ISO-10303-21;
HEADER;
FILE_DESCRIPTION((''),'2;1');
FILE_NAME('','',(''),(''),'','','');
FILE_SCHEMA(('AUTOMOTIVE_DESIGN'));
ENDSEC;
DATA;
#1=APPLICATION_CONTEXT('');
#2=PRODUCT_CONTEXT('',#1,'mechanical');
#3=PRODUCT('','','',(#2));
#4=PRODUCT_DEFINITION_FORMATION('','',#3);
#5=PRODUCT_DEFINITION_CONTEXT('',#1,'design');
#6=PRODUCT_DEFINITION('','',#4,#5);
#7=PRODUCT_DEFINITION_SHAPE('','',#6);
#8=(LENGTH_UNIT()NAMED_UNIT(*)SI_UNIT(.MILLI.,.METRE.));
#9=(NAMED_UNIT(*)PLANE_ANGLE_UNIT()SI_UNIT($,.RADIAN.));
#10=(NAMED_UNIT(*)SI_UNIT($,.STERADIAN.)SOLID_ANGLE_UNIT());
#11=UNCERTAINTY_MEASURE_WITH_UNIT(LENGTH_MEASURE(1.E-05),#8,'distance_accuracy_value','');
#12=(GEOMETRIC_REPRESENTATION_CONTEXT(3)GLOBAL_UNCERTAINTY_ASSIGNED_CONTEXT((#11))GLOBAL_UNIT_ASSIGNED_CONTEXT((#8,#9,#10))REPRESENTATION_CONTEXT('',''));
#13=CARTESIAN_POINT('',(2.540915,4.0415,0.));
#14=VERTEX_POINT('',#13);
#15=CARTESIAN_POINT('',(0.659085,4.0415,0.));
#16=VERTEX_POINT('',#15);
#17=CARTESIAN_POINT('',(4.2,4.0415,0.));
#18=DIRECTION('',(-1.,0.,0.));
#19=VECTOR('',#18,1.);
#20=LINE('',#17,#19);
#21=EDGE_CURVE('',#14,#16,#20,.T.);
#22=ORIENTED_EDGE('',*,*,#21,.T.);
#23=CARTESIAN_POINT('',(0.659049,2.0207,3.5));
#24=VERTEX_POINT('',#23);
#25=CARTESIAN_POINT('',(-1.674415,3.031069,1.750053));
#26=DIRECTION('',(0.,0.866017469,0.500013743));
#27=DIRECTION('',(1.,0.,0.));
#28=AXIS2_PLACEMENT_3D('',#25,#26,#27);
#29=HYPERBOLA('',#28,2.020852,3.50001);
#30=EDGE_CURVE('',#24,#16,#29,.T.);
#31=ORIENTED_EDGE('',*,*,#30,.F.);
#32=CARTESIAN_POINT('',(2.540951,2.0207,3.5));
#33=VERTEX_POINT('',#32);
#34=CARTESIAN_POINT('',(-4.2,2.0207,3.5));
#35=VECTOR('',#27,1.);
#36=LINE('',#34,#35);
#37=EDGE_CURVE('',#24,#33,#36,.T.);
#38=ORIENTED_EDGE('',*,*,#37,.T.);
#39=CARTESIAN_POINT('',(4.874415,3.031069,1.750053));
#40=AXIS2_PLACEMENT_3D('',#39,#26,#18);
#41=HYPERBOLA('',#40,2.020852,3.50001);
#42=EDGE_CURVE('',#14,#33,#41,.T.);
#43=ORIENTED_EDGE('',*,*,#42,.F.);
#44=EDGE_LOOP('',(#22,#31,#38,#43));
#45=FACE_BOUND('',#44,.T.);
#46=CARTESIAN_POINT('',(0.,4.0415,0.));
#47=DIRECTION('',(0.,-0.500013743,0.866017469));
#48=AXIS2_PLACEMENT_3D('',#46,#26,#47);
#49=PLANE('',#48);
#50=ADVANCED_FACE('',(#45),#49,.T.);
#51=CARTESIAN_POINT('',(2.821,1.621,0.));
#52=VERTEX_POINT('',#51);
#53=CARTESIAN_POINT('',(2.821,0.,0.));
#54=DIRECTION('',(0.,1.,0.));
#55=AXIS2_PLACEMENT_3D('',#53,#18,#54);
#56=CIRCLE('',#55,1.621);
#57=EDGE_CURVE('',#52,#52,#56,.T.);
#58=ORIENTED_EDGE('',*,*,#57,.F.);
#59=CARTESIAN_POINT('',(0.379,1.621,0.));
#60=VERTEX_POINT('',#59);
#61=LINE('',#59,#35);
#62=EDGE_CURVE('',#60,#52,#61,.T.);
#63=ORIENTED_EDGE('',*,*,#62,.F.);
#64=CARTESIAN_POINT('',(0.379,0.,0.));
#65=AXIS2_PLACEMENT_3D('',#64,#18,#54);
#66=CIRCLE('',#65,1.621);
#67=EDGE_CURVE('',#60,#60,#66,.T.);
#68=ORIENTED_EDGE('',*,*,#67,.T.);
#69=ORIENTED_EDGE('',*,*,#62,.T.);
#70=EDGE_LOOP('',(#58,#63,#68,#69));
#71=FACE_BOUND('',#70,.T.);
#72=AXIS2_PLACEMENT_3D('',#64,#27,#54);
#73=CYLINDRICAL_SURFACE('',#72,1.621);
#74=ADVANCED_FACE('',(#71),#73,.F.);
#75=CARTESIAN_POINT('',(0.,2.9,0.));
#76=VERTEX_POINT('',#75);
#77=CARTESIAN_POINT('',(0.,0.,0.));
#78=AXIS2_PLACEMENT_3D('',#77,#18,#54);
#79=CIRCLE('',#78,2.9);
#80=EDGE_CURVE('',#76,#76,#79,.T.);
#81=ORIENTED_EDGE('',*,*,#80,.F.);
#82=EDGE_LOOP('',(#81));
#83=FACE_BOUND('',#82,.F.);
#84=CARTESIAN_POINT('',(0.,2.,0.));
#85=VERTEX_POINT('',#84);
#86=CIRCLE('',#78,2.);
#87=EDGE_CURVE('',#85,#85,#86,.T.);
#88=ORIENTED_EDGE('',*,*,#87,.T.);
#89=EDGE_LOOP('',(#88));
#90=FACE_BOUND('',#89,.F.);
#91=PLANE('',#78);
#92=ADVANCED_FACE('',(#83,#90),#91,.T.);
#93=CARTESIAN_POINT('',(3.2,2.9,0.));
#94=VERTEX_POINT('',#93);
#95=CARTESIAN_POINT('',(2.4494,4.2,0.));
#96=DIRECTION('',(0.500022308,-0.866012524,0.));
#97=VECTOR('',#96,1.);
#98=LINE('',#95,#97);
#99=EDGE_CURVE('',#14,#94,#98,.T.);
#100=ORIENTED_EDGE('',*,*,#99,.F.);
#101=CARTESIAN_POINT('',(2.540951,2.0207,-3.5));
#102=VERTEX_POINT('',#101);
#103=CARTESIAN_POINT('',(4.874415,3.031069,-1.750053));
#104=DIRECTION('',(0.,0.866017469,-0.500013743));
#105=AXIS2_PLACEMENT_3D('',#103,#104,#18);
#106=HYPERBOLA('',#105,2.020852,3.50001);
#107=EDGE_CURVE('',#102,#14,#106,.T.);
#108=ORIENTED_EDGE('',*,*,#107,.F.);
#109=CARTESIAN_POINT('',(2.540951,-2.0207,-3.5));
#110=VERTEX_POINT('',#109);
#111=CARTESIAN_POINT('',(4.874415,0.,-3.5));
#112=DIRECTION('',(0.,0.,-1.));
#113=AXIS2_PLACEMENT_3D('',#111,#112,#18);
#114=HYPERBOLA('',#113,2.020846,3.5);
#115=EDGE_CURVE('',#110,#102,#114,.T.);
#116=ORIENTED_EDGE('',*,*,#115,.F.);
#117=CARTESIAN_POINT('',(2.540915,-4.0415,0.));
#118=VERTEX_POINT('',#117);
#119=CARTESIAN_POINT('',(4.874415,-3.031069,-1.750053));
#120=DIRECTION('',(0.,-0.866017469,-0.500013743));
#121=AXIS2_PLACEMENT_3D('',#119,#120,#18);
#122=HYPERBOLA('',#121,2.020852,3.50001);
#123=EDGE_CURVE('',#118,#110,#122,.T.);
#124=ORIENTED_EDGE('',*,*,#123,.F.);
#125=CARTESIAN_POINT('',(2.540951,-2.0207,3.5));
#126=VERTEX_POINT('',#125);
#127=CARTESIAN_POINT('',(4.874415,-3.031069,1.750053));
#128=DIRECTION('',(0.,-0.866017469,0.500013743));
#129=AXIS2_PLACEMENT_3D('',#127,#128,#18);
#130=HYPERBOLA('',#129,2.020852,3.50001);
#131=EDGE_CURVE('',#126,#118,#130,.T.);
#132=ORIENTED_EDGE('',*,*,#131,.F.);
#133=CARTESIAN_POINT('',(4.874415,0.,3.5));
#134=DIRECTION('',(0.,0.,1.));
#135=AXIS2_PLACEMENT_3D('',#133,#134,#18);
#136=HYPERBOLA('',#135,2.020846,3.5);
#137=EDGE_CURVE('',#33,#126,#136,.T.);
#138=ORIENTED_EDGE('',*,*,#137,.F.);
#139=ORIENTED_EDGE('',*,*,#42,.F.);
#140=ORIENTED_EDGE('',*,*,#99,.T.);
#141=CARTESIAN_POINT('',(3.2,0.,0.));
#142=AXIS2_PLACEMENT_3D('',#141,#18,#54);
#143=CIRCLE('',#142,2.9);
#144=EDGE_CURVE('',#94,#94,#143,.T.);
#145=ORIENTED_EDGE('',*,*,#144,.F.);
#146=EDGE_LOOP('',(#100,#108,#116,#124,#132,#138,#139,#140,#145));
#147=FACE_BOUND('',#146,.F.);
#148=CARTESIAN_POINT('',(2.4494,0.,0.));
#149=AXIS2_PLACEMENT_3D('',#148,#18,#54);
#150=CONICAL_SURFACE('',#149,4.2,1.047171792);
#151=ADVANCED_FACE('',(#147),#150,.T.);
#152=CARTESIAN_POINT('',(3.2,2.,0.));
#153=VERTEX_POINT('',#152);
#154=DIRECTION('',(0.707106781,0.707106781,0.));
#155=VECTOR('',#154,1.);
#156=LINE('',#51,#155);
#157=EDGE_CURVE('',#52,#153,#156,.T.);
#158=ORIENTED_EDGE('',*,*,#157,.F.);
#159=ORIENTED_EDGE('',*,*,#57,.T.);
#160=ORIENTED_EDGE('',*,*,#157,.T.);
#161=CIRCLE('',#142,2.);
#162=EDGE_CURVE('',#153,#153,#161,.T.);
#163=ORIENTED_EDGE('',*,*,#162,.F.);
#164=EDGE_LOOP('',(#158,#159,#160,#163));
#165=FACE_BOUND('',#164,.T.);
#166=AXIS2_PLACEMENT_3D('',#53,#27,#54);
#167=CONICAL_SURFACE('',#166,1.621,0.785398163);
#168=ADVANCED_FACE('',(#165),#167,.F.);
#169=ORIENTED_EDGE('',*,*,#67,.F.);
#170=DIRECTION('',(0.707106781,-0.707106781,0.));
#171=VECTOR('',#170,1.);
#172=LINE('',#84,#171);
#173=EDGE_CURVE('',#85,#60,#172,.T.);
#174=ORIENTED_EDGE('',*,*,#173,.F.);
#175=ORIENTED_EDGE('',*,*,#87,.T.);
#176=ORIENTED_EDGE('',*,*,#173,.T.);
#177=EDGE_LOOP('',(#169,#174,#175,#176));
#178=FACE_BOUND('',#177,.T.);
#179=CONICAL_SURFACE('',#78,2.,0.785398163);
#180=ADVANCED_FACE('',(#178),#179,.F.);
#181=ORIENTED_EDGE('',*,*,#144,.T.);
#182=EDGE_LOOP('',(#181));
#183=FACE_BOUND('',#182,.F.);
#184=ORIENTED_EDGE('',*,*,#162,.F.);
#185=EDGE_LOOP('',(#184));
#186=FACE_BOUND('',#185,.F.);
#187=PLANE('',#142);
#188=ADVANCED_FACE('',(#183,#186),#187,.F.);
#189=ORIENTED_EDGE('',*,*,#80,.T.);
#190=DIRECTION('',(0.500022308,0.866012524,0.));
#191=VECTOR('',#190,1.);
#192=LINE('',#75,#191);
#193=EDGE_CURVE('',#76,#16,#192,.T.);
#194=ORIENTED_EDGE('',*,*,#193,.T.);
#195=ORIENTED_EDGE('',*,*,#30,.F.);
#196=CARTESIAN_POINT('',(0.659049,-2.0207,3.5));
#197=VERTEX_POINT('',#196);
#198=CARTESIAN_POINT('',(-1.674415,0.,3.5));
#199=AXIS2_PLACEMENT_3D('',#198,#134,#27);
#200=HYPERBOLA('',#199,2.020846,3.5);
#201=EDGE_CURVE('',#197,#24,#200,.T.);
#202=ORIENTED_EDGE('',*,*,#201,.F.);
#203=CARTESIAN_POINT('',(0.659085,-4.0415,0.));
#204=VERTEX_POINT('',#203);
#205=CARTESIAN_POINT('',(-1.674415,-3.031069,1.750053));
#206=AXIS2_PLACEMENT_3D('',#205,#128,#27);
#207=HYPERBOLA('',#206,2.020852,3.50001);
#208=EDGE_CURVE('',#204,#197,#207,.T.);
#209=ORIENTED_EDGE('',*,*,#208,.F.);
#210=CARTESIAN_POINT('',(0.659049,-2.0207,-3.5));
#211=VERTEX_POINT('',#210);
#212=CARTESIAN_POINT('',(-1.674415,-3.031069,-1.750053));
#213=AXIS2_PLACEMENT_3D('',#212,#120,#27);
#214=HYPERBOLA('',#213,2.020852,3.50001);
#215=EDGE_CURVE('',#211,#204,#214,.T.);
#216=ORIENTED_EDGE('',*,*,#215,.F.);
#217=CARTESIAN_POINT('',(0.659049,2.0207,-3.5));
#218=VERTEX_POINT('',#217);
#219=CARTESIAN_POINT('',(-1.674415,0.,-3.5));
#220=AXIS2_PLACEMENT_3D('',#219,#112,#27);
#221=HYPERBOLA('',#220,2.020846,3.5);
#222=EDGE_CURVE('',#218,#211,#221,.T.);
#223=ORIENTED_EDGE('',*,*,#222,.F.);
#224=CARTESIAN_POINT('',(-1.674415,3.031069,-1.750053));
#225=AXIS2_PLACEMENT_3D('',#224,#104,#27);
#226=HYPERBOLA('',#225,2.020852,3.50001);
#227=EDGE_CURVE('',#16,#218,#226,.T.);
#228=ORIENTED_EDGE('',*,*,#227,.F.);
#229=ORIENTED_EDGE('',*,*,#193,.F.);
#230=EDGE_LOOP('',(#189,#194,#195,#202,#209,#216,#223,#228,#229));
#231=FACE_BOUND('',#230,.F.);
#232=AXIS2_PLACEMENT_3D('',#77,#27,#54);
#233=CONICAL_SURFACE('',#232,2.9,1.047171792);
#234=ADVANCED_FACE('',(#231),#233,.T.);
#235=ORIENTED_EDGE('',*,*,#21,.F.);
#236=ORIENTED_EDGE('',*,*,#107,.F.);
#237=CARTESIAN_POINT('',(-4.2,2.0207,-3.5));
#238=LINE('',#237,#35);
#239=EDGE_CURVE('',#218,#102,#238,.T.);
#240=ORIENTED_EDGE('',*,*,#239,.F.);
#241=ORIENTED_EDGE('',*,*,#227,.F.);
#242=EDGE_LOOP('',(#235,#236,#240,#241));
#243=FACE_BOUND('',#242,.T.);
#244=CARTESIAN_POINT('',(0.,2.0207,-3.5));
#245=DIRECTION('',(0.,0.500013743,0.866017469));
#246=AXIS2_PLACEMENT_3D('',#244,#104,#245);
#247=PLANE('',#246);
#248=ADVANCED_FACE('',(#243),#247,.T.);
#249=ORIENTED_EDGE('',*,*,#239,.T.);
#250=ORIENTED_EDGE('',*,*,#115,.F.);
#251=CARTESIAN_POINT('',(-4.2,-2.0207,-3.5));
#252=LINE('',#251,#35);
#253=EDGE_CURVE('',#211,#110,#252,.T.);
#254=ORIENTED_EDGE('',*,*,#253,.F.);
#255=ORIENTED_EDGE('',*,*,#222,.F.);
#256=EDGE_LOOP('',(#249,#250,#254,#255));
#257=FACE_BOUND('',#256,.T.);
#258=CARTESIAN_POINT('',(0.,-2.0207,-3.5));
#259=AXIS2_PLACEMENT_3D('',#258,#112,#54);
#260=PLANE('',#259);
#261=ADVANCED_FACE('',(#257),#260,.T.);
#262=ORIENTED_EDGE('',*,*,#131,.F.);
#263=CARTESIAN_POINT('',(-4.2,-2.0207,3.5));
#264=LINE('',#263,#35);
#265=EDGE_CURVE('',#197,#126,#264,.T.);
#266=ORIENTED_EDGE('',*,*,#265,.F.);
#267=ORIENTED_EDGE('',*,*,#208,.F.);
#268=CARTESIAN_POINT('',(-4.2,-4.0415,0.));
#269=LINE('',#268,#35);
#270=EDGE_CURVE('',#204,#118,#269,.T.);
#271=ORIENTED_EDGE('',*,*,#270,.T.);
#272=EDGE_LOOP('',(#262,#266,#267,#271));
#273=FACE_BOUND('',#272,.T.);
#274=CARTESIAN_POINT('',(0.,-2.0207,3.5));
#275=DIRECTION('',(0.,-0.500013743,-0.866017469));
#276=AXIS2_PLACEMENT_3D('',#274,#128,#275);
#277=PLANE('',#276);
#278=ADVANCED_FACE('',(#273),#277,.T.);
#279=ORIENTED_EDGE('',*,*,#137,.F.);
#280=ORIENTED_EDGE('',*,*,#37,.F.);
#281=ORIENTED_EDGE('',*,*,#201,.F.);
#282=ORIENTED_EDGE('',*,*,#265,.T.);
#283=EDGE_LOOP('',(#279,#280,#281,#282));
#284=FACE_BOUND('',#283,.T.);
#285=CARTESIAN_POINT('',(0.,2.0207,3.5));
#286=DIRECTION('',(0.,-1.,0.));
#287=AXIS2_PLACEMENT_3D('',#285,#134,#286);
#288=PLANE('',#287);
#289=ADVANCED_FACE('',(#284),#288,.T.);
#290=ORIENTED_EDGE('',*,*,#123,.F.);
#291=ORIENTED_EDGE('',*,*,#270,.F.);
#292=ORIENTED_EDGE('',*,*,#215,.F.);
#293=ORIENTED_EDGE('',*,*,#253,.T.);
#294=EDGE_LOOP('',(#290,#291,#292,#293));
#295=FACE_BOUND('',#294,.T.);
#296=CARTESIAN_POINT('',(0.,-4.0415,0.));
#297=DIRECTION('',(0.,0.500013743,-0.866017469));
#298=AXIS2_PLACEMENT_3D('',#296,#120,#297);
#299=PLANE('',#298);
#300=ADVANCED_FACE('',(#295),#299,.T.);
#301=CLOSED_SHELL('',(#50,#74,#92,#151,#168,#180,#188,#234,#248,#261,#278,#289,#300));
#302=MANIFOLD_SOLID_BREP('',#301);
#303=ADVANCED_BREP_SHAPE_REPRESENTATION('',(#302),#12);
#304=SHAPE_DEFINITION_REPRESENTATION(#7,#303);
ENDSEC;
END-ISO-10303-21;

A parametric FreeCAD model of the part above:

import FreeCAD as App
import Part
import Sketcher
from FreeCAD import Vector
Q = App.Units.Quantity

doc = App.newDocument("Part")
body = doc.addObject("PartDesign::Body", "Body")

# Sketch on XY plane
sketch1 = body.newObject("Sketcher::SketchObject", "Sketch")
sketch1.AttachmentSupport = (doc.getObject("XY_Plane"), [""])
sketch1.MapMode = "FlatFace"
sketch1.addGeometry([
    Part.LineSegment(Vector(0, 4.2, 0), Vector(0, 0, 0)),
    Part.LineSegment(Vector(0, 0, 0), Vector(3.2, 0, 0)),
    Part.LineSegment(Vector(3.2, 0, 0), Vector(3.2, 4.2, 0)),
    Part.LineSegment(Vector(3.2, 4.2, 0), Vector(0, 4.2, 0)),
], False)
sketch1.addConstraint([
    Sketcher.Constraint("Coincident", 0, 2, 1, 1),
    Sketcher.Constraint("Coincident", 1, 2, 2, 1),
    Sketcher.Constraint("Coincident", 2, 2, 3, 1),
    Sketcher.Constraint("Coincident", 3, 2, 0, 1),
    Sketcher.Constraint("Vertical", 0),
    Sketcher.Constraint("Horizontal", 1),
    Sketcher.Constraint("Vertical", 2),
    Sketcher.Constraint("Horizontal", 3),
    Sketcher.Constraint("Coincident", 0, 2, -1, 1),
    Sketcher.Constraint("DistanceX", 1, 1, 1, 2, Q("3.2 mm")),
    Sketcher.Constraint("DistanceY", 0, 2, 0, 1, Q("4.2 mm")),
])
revolution = body.newObject("PartDesign::Revolution", "Revolution")
revolution.Profile = sketch1
revolution.ReferenceAxis = (sketch1, ["H_Axis"])
revolution.Angle = 360

# Sketch on XY plane
sketch2 = body.newObject("Sketcher::SketchObject", "Sketch001")
sketch2.AttachmentSupport = (doc.getObject("XY_Plane"), [""])
sketch2.MapMode = "FlatFace"
sketch2.addGeometry([
    Part.LineSegment(Vector(3.52, 7, 0), Vector(-1, 7, 0)),  # 0
    Part.LineSegment(Vector(-1, 7, 0), Vector(-1, 2.9, 0)),  # 1
    Part.LineSegment(Vector(-1, 2.9, 0), Vector(0, 2.9, 0)),  # 2
    Part.LineSegment(Vector(0, 2.9, 0), Vector(0.75, 4.2, 0)),  # 3
    Part.LineSegment(Vector(0.75, 4.2, 0), Vector(2.45, 4.2, 0)),  # 4
    Part.LineSegment(Vector(2.45, 4.2, 0), Vector(3.2, 2.9, 0)),  # 5
    Part.LineSegment(Vector(3.2, 2.9, 0), Vector(3.52, 2.9, 0)),  # 6
    Part.LineSegment(Vector(3.52, 2.9, 0), Vector(3.52, 7, 0)),  # 7
], False)
sketch2.addConstraint([
    Sketcher.Constraint("Coincident", 0, 2, 1, 1),
    Sketcher.Constraint("Coincident", 1, 2, 2, 1),
    Sketcher.Constraint("Coincident", 2, 2, 3, 1),
    Sketcher.Constraint("Coincident", 3, 2, 4, 1),
    Sketcher.Constraint("Coincident", 4, 2, 5, 1),
    Sketcher.Constraint("Coincident", 5, 2, 6, 1),
    Sketcher.Constraint("Coincident", 6, 2, 7, 1),
    Sketcher.Constraint("Coincident", 7, 2, 0, 1),
    Sketcher.Constraint("Horizontal", 0),
    Sketcher.Constraint("Vertical", 1),
    Sketcher.Constraint("Horizontal", 2),
    Sketcher.Constraint("Horizontal", 4),
    Sketcher.Constraint("Horizontal", 6),
    Sketcher.Constraint("Vertical", 7),
    Sketcher.Constraint("PointOnObject", 2, 2, -2),
    Sketcher.Constraint("Horizontal", 2, 2, 5, 2),
    Sketcher.Constraint("Equal", 3, 5),
    Sketcher.Constraint("DistanceX", 2, 1, 2, 2, Q("1 mm")),
    Sketcher.Constraint("DistanceY", 1, 2, 1, 1, Q("4.1 mm")),
    Sketcher.Constraint("DistanceY", -1, 1, 0, 2, Q("7 mm")),
    Sketcher.Constraint("DistanceX", 0, 2, 0, 1, Q("4.52 mm")),
    Sketcher.Constraint("DistanceX", 6, 1, 6, 2, Q("0.32 mm")),
    Sketcher.Constraint("DistanceY", -1, 1, 3, 2, Q("4.2 mm")),
    Sketcher.Constraint("DistanceX", 4, 1, 4, 2, Q("1.6988 mm")),
])
groove = body.newObject("PartDesign::Groove", "Groove")
groove.Profile = sketch2
groove.ReferenceAxis = (sketch2, ["H_Axis"])
groove.Angle = 360

# Sketch on XY plane
sketch3 = body.newObject("Sketcher::SketchObject", "Sketch002")
sketch3.AttachmentSupport = (doc.getObject("XY_Plane"), [""])
sketch3.MapMode = "FlatFace"
sketch3.addGeometry([
    Part.LineSegment(Vector(0, 2, 0), Vector(0, 0, 0)),  # 0
    Part.LineSegment(Vector(0, 0, 0), Vector(3.2, 0, 0)),  # 1
    Part.LineSegment(Vector(3.2, 0, 0), Vector(3.2, 2, 0)),  # 2
    Part.LineSegment(Vector(3.2, 2, 0), Vector(2.8, 1.6, 0)),  # 3
    Part.LineSegment(Vector(2.8, 1.6, 0), Vector(0.4, 1.6, 0)),  # 4
    Part.LineSegment(Vector(0.4, 1.6, 0), Vector(0, 2, 0)),  # 5
], False)
sketch3.addConstraint([
    Sketcher.Constraint("Coincident", 0, 2, 1, 1),
    Sketcher.Constraint("Coincident", 1, 2, 2, 1),
    Sketcher.Constraint("Coincident", 2, 2, 3, 1),
    Sketcher.Constraint("Coincident", 3, 2, 4, 1),
    Sketcher.Constraint("Coincident", 4, 2, 5, 1),
    Sketcher.Constraint("Coincident", 5, 2, 0, 1),
    Sketcher.Constraint("Vertical", 0),
    Sketcher.Constraint("Horizontal", 1),
    Sketcher.Constraint("Vertical", 2),
    Sketcher.Constraint("Horizontal", 4),
    Sketcher.Constraint("Coincident", 0, 2, -1, 1),
    Sketcher.Constraint("Perpendicular", 3, 5),
    Sketcher.Constraint("Horizontal", 2, 2, 5, 2),
    Sketcher.Constraint("Equal", 3, 5),
    Sketcher.Constraint("DistanceY", 0, 2, 0, 1, Q("2 mm")),
    Sketcher.Constraint("DistanceX", 1, 1, 1, 2, Q("3.2 mm")),
    Sketcher.Constraint("DistanceX", 4, 2, 4, 1, Q("2.442 mm")),
])
groove2 = body.newObject("PartDesign::Groove", "Groove001")
groove2.Profile = sketch3
groove2.ReferenceAxis = (sketch3, ["H_Axis"])
groove2.Angle = 360

# Sketch on YZ plane
sketch4 = body.newObject("Sketcher::SketchObject", "Sketch003")
sketch4.AttachmentSupport = (doc.getObject("YZ_Plane"), [""])
sketch4.MapMode = "FlatFace"
sketch4.addGeometry([
    Part.LineSegment(Vector(14, -14, 0), Vector(14, 14, 0)),  # 0
    Part.LineSegment(Vector(14, 14, 0), Vector(-14, 14, 0)),  # 1
    Part.LineSegment(Vector(-14, 14, 0), Vector(-14, -14, 0)),  # 2
    Part.LineSegment(Vector(-14, -14, 0), Vector(14, -14, 0)),  # 3
    Part.LineSegment(Vector(-4, 0, 0), Vector(-2, 3.5, 0)),  # 4
    Part.LineSegment(Vector(-2, 3.5, 0), Vector(2, 3.5, 0)),  # 5
    Part.LineSegment(Vector(2, 3.5, 0), Vector(4, 0, 0)),  # 6
    Part.LineSegment(Vector(4, 0, 0), Vector(2, -3.5, 0)),  # 7
    Part.LineSegment(Vector(2, -3.5, 0), Vector(-2, -3.5, 0)),  # 8
    Part.LineSegment(Vector(-2, -3.5, 0), Vector(-4, 0, 0)),  # 9
], False)
sketch4.addConstraint([
    Sketcher.Constraint("Coincident", 0, 2, 1, 1),
    Sketcher.Constraint("Coincident", 1, 2, 2, 1),
    Sketcher.Constraint("Coincident", 2, 2, 3, 1),
    Sketcher.Constraint("Coincident", 3, 2, 0, 1),
    Sketcher.Constraint("Coincident", 4, 2, 5, 1),
    Sketcher.Constraint("Coincident", 5, 2, 6, 1),
    Sketcher.Constraint("Coincident", 6, 2, 7, 1),
    Sketcher.Constraint("Coincident", 7, 2, 8, 1),
    Sketcher.Constraint("Coincident", 8, 2, 9, 1),
    Sketcher.Constraint("Coincident", 9, 2, 4, 1),
    Sketcher.Constraint("Vertical", 0),
    Sketcher.Constraint("Horizontal", 1),
    Sketcher.Constraint("Vertical", 2),
    Sketcher.Constraint("Horizontal", 3),
    Sketcher.Constraint("Horizontal", 5),
    Sketcher.Constraint("Horizontal", 8),
    Sketcher.Constraint("Symmetric", 0, 2, 2, 2, -1, 1),
    Sketcher.Constraint("Symmetric", 4, 2, 7, 2, -1, 1),
    Sketcher.Constraint("Symmetric", 6, 2, 9, 2, -1, 1),
    Sketcher.Constraint("PointOnObject", 6, 2, -1),
    Sketcher.Constraint("Parallel", 6, 9),
    Sketcher.Constraint("Vertical", 5, 2, 7, 2),
    Sketcher.Constraint("Equal", 3, 0),
    Sketcher.Constraint("DistanceX", 1, 2, 1, 1, Q("28 mm")),
    Sketcher.Constraint("Angle", 4, Q("59.999 deg")),
    Sketcher.Constraint("DistanceY", 7, 2, 5, 2, Q("7 mm")),
    Sketcher.Constraint("DistanceX", 5, 1, 5, 2, Q("4.0414 mm")),
])
pocket1 = body.newObject("PartDesign::Pocket", "Pocket")
pocket1.Profile = sketch4
pocket1.Type = "ThroughAll"
pocket1.Midplane = True

doc.recompute()
